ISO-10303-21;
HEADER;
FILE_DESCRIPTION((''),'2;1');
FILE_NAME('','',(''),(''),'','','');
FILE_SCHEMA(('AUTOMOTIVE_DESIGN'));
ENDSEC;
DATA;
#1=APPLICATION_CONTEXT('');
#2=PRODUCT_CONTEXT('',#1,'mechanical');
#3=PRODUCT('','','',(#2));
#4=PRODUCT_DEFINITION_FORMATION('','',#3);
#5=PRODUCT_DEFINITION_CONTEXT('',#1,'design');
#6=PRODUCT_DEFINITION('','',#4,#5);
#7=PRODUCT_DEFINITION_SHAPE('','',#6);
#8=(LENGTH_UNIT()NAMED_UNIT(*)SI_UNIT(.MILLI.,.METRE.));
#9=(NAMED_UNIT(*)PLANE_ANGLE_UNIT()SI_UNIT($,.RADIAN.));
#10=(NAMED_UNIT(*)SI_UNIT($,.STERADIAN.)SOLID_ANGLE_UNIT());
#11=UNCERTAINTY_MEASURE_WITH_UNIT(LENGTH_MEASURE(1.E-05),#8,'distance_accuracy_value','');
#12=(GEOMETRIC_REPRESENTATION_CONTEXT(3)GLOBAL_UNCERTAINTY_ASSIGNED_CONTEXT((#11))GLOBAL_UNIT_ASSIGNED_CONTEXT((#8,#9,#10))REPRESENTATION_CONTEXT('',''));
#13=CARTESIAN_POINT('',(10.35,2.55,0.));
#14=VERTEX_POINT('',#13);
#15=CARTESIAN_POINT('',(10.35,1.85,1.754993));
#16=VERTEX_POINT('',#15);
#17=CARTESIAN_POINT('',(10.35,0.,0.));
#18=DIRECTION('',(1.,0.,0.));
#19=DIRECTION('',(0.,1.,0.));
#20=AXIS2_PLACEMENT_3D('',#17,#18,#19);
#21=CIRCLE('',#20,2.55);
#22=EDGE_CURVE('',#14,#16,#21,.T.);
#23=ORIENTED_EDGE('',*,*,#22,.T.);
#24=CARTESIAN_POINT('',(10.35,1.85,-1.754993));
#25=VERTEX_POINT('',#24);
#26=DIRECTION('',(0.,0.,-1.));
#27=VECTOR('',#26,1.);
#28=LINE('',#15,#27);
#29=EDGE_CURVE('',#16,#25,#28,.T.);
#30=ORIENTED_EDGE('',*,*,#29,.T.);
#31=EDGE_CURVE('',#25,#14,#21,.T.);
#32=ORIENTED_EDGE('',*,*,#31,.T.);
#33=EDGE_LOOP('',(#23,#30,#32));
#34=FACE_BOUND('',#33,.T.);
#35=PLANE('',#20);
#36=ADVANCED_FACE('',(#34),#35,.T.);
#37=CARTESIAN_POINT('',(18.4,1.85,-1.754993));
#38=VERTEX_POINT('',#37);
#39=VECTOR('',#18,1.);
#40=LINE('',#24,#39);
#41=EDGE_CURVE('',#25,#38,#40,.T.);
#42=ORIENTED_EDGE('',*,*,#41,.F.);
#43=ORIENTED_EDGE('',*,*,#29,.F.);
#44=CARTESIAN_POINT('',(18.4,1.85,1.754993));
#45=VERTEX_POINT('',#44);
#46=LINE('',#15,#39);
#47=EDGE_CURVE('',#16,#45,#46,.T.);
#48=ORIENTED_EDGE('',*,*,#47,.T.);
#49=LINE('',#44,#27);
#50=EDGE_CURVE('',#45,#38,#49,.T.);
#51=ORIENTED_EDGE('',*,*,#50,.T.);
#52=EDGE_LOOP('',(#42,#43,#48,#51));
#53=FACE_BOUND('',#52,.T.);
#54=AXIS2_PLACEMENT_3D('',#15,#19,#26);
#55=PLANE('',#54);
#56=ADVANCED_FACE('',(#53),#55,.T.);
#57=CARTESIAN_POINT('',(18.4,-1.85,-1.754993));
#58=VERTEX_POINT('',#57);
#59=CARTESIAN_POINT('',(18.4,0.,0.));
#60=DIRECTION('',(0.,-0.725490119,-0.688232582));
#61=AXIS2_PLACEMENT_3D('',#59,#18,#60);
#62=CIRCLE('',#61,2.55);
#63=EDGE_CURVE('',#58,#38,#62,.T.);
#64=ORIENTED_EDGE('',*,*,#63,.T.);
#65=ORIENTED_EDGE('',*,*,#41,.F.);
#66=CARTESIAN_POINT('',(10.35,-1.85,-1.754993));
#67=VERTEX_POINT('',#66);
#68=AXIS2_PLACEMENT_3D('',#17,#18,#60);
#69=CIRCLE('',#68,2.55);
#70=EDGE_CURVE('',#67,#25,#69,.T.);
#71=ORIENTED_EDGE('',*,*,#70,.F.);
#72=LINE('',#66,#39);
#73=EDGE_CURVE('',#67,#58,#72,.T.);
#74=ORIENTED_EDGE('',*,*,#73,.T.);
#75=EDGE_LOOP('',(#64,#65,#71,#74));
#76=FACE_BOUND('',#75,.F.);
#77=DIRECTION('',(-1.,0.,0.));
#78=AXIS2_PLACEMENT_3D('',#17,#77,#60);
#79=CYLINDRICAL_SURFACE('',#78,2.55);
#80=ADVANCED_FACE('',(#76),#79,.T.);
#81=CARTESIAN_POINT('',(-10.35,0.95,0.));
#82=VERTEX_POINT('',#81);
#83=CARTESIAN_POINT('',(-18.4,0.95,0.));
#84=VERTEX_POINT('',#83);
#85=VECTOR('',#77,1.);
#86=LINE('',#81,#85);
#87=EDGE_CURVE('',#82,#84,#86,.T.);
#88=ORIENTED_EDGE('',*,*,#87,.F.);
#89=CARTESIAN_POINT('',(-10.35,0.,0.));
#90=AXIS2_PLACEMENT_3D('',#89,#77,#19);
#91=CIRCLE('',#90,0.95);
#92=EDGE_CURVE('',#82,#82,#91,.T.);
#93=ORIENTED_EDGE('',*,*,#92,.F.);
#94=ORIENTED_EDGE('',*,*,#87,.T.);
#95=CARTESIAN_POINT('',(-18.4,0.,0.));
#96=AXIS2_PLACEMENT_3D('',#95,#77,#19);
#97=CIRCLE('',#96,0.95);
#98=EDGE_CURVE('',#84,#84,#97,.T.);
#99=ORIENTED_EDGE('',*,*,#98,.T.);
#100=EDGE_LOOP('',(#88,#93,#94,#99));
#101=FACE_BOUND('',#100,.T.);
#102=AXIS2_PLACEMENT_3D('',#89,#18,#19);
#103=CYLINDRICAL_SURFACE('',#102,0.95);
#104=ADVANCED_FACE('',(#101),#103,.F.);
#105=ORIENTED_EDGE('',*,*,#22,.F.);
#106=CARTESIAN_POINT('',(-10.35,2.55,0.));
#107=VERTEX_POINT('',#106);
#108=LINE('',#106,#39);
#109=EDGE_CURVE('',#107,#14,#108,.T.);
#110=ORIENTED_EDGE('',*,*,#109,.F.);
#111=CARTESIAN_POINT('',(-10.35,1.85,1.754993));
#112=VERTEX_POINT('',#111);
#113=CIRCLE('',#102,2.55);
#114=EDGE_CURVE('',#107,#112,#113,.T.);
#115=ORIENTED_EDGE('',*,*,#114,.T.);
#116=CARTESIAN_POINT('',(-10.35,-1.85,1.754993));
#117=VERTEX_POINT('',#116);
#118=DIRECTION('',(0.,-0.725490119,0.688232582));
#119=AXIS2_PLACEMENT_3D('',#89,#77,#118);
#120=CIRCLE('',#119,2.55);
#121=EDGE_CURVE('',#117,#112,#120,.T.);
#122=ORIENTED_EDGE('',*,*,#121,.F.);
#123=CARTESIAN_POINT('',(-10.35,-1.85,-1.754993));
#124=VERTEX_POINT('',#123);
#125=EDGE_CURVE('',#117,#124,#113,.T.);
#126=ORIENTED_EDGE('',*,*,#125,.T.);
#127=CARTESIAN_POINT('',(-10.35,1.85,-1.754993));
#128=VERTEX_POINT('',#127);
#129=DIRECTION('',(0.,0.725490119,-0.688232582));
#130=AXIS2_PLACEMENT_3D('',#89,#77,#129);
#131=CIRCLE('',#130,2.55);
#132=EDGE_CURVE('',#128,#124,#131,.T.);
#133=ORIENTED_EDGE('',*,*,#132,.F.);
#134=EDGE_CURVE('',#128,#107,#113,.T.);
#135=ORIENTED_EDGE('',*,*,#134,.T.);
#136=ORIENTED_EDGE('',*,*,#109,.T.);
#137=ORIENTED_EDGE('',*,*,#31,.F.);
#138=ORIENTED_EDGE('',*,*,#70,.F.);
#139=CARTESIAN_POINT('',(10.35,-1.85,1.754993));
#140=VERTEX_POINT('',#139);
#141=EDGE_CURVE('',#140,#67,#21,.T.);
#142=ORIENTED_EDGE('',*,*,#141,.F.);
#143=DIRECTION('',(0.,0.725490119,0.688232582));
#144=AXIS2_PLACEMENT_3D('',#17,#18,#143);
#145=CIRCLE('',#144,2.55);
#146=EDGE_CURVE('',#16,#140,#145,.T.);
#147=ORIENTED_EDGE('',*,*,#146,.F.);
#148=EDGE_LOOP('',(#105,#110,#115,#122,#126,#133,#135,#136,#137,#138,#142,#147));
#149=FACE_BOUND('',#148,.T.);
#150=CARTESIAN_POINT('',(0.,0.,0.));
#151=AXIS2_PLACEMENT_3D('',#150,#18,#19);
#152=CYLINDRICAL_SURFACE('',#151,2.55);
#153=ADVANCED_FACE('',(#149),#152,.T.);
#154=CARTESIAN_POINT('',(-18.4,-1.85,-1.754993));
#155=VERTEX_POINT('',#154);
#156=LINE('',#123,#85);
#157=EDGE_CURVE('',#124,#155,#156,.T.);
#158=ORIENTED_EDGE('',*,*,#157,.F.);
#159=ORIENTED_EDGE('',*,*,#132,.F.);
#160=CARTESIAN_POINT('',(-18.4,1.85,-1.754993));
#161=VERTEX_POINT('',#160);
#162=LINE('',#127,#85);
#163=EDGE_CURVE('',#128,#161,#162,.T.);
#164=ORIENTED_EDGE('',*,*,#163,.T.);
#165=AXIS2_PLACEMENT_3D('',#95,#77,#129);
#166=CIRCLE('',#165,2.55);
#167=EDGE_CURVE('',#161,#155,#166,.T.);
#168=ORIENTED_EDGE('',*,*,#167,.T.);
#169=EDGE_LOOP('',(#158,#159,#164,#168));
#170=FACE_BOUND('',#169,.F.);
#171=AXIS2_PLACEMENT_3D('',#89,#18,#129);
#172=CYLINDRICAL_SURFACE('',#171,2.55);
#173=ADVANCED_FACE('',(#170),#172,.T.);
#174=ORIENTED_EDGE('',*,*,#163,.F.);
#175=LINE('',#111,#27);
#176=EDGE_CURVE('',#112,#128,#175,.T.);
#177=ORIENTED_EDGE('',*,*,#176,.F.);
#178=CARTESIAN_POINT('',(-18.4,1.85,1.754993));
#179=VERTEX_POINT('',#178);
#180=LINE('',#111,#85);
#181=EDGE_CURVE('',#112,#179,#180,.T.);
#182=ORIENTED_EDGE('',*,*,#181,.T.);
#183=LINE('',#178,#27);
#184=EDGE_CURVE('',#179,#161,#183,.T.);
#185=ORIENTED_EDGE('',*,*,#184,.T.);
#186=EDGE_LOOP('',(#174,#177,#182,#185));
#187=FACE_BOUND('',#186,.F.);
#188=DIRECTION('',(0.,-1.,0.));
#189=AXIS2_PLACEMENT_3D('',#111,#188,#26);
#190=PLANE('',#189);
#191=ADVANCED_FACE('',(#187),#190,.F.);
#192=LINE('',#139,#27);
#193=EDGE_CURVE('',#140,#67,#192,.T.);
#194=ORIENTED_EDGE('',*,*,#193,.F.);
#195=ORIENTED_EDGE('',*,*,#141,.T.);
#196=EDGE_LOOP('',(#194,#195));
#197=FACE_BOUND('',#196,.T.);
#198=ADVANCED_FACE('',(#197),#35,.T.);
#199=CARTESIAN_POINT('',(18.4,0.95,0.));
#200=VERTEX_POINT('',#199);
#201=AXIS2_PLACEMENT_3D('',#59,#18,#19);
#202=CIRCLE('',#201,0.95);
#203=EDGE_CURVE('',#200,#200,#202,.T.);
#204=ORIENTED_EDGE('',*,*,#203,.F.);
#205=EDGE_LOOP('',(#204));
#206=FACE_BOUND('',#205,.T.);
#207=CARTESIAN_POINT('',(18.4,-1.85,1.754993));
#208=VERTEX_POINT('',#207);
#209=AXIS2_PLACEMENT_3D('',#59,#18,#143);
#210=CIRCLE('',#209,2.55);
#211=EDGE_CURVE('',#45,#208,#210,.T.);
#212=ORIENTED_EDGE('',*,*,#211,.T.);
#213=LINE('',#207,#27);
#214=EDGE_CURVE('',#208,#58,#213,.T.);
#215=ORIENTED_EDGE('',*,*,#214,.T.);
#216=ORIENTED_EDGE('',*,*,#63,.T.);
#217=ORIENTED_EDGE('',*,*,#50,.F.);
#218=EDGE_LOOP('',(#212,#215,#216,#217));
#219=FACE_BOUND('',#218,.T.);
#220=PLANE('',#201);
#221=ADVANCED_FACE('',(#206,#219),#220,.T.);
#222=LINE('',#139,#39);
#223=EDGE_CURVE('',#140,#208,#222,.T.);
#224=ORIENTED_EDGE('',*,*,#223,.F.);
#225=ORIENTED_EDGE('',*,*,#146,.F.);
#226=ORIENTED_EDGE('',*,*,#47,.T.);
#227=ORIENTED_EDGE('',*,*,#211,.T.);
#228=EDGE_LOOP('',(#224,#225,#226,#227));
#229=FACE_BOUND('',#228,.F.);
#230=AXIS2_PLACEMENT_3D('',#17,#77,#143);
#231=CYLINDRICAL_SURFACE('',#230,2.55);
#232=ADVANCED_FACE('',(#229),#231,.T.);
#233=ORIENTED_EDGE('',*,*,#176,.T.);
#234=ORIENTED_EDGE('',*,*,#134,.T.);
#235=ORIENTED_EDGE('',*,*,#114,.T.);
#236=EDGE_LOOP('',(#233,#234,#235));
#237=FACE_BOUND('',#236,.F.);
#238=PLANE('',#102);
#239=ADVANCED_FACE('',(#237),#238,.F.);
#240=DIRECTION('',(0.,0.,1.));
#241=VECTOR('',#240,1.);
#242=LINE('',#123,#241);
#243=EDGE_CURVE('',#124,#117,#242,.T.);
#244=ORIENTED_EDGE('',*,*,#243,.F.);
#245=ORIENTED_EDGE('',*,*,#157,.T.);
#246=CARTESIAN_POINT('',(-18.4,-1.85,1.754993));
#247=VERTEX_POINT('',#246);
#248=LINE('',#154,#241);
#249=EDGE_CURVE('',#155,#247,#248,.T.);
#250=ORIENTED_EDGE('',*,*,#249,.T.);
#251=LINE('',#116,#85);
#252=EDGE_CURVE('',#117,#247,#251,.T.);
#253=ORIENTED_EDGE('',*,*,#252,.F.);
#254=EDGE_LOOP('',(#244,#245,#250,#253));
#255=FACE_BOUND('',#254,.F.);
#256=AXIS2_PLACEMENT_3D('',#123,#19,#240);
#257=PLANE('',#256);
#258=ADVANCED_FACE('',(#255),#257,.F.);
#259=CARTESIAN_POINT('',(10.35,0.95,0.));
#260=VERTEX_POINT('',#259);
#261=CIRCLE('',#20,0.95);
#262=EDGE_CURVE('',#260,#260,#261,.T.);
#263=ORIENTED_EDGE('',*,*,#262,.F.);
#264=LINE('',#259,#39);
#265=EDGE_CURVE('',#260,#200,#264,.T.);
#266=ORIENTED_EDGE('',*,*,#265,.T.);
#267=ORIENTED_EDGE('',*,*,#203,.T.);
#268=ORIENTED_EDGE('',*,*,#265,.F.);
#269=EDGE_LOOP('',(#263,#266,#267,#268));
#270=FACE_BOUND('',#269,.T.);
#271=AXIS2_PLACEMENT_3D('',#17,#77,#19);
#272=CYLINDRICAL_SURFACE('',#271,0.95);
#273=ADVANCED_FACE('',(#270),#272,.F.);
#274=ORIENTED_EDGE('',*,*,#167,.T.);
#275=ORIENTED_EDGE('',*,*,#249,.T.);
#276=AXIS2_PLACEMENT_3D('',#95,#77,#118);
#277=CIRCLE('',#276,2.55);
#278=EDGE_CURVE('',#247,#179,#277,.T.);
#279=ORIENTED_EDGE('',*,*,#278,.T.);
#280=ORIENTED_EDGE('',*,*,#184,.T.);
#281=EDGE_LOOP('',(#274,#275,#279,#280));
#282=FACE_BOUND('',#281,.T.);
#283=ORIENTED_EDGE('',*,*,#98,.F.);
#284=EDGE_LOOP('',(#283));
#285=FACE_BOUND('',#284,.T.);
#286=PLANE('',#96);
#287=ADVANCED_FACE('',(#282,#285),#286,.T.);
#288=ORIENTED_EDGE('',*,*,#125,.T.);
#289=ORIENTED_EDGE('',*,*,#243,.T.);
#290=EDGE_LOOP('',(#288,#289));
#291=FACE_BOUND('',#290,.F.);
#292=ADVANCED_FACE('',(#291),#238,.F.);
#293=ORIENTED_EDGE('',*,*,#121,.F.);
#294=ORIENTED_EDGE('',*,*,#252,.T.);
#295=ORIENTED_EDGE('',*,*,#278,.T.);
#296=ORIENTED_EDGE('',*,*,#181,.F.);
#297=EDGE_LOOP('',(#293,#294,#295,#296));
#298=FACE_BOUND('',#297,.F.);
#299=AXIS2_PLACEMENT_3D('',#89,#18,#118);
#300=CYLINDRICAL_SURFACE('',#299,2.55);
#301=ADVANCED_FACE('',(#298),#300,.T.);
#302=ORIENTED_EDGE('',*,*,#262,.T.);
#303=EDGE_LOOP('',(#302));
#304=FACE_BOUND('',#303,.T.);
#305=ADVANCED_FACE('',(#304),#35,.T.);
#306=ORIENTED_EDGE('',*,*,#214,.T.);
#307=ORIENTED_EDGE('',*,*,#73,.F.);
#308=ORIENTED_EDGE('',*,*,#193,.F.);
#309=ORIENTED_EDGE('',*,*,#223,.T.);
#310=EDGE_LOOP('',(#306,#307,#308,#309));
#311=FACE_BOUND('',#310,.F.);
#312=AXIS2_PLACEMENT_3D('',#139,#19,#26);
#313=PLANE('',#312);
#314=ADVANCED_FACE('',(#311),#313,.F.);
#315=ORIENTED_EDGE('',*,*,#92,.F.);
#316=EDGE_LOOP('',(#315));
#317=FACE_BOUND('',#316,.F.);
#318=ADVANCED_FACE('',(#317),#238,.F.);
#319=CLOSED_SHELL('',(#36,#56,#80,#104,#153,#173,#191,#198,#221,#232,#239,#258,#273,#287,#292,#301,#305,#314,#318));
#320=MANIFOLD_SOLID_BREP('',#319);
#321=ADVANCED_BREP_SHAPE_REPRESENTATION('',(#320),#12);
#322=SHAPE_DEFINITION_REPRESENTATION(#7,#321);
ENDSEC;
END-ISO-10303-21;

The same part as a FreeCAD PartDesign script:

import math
import FreeCAD as App
import Part
import Sketcher
from FreeCAD import Vector
Q = App.Units.Quantity

doc = App.newDocument("Part")
params = doc.addObject("Spreadsheet::Sheet", "Params")
for row, (alias, value) in enumerate([
    ("sketch1_diameter", "5.1 mm"),
    ("pad1_length", "20.7 mm"),
    ("sketch2_diameter", "1.9 mm"),
    ("sketch2_radius", "2.55 mm"),
    ("pad2_length", "8.05 mm"),
    ("sketch3_diameter", "1.9 mm"),
    ("sketch3_radius", "2.55 mm"),
    ("pad3_length", "8.05 mm"),
], start=1):
    params.set(f"A{row}", alias)
    params.set(f"B{row}", "=" + value)
    params.setAlias(f"B{row}", alias)

body = doc.addObject("PartDesign::Body", "Body")

# Sketch on YZ plane
sketch1 = doc.addObject("Sketcher::SketchObject", "Sketch")
body.addObject(sketch1)
sketch1.AttachmentSupport = (doc.YZ_Plane, [""])
sketch1.MapMode = "FlatFace"
sketch1.addGeometry(Part.Circle(Vector(0, 0, 0), Vector(0, 0, 1), 2.5), False)
sketch1.addConstraint(Sketcher.Constraint("Coincident", 0, 3, -1, 1))
sketch1.addConstraint(Sketcher.Constraint("Diameter", 0, Q("5.1 mm")))
sketch1.setExpression("Constraints[1]", "Params.sketch1_diameter")
pad1 = doc.addObject("PartDesign::Pad", "Pad")
body.addObject(pad1)
pad1.Profile = sketch1
pad1.setExpression("Length", "Params.pad1_length")
pad1.Midplane = True

# Sketch on YZ plane
sketch2 = doc.addObject("Sketcher::SketchObject", "Sketch001")
body.addObject(sketch2)
sketch2.AttachmentSupport = (doc.YZ_Plane, [""])
sketch2.MapMode = "FlatFace"
sketch2.AttachmentOffset = App.Placement(Vector(0, 0, 10.35), App.Rotation())
sketch2.addGeometry(Part.ArcOfCircle(Part.Circle(Vector(0, 0, 0), Vector(0, 0, 1), 2.6), math.radians(43), math.radians(137)), False)
sketch2.addGeometry(Part.LineSegment(Vector(-1.9, 1.8, 0), Vector(-1.9, -1.8, 0)), False)
sketch2.addGeometry(Part.ArcOfCircle(Part.Circle(Vector(0, 0, 0), Vector(0, 0, 1), 2.6), math.radians(-137), math.radians(-43)), False)
sketch2.addGeometry(Part.LineSegment(Vector(1.9, -1.8, 0), Vector(1.9, 1.8, 0)), False)
sketch2.addGeometry(Part.Circle(Vector(0, 0, 0), Vector(0, 0, 1), 0.9), False)
sketch2.addConstraint(Sketcher.Constraint("Coincident", 0, 2, 1, 1))
sketch2.addConstraint(Sketcher.Constraint("Coincident", 1, 2, 2, 1))
sketch2.addConstraint(Sketcher.Constraint("Coincident", 2, 2, 3, 1))
sketch2.addConstraint(Sketcher.Constraint("Coincident", 3, 2, 0, 1))
sketch2.addConstraint(Sketcher.Constraint("Vertical", 1))
sketch2.addConstraint(Sketcher.Constraint("Vertical", 3))
sketch2.addConstraint(Sketcher.Constraint("Coincident", 0, 3, -1, 1))
sketch2.addConstraint(Sketcher.Constraint("Coincident", 2, 3, -1, 1))
sketch2.addConstraint(Sketcher.Constraint("Coincident", 4, 3, -1, 1))
sketch2.addConstraint(Sketcher.Constraint("Equal", 0, 2))
sketch2.addConstraint(Sketcher.Constraint("Horizontal", 1, 2, 2, 2))
sketch2.addConstraint(Sketcher.Constraint("Diameter", 4, Q("1.9 mm")))
sketch2.addConstraint(Sketcher.Constraint("Radius", 0, Q("2.55 mm")))
sketch2.addConstraint(Sketcher.Constraint("DistanceX", 1, 2, 2, 2, Q("3.7 mm")))
sketch2.setExpression("Constraints[11]", "Params.sketch2_diameter")
sketch2.setExpression("Constraints[12]", "Params.sketch2_radius")
pad2 = doc.addObject("PartDesign::Pad", "Pad001")
body.addObject(pad2)
pad2.Profile = sketch2
pad2.setExpression("Length", "Params.pad2_length")

# Sketch on YZ plane
sketch3 = doc.addObject("Sketcher::SketchObject", "Sketch002")
body.addObject(sketch3)
sketch3.AttachmentSupport = (doc.YZ_Plane, [""])
sketch3.MapMode = "FlatFace"
sketch3.AttachmentOffset = App.Placement(Vector(0, 0, -10.35), App.Rotation())
sketch3.addGeometry(Part.LineSegment(Vector(-1.9, -1.8, 0), Vector(-1.9, 1.8, 0)), False)
sketch3.addGeometry(Part.ArcOfCircle(Part.Circle(Vector(0, 0, 0), Vector(0, 0, 1), 2.6), math.radians(43), math.radians(137)), False)
sketch3.addGeometry(Part.LineSegment(Vector(1.9, 1.8, 0), Vector(1.9, -1.8, 0)), False)
sketch3.addGeometry(Part.ArcOfCircle(Part.Circle(Vector(0, 0, 0), Vector(0, 0, 1), 2.6), math.radians(-137), math.radians(-43)), False)
sketch3.addGeometry(Part.Circle(Vector(0, 0, 0), Vector(0, 0, 1), 0.9), False)
sketch3.addConstraint(Sketcher.Constraint("Coincident", 0, 2, 1, 2))
sketch3.addConstraint(Sketcher.Constraint("Coincident", 1, 1, 2, 1))
sketch3.addConstraint(Sketcher.Constraint("Coincident", 2, 2, 3, 2))
sketch3.addConstraint(Sketcher.Constraint("Coincident", 3, 1, 0, 1))
sketch3.addConstraint(Sketcher.Constraint("Vertical", 0))
sketch3.addConstraint(Sketcher.Constraint("Vertical", 2))
sketch3.addConstraint(Sketcher.Constraint("Coincident", 1, 3, -1, 1))
sketch3.addConstraint(Sketcher.Constraint("Coincident", 3, 3, -1, 1))
sketch3.addConstraint(Sketcher.Constraint("Coincident", 4, 3, -1, 1))
sketch3.addConstraint(Sketcher.Constraint("Equal", 1, 3))
sketch3.addConstraint(Sketcher.Constraint("Horizontal", 0, 2, 1, 1))
sketch3.addConstraint(Sketcher.Constraint("Diameter", 4, Q("1.9 mm")))
sketch3.addConstraint(Sketcher.Constraint("Radius", 1, Q("2.55 mm")))
sketch3.addConstraint(Sketcher.Constraint("DistanceX", 0, 2, 1, 1, Q("3.7 mm")))
sketch3.setExpression("Constraints[11]", "Params.sketch3_diameter")
sketch3.setExpression("Constraints[12]", "Params.sketch3_radius")
pad3 = doc.addObject("PartDesign::Pad", "Pad002")
body.addObject(pad3)
pad3.Profile = sketch3
pad3.setExpression("Length", "Params.pad3_length")
pad3.Reversed = True

doc.recompute()
